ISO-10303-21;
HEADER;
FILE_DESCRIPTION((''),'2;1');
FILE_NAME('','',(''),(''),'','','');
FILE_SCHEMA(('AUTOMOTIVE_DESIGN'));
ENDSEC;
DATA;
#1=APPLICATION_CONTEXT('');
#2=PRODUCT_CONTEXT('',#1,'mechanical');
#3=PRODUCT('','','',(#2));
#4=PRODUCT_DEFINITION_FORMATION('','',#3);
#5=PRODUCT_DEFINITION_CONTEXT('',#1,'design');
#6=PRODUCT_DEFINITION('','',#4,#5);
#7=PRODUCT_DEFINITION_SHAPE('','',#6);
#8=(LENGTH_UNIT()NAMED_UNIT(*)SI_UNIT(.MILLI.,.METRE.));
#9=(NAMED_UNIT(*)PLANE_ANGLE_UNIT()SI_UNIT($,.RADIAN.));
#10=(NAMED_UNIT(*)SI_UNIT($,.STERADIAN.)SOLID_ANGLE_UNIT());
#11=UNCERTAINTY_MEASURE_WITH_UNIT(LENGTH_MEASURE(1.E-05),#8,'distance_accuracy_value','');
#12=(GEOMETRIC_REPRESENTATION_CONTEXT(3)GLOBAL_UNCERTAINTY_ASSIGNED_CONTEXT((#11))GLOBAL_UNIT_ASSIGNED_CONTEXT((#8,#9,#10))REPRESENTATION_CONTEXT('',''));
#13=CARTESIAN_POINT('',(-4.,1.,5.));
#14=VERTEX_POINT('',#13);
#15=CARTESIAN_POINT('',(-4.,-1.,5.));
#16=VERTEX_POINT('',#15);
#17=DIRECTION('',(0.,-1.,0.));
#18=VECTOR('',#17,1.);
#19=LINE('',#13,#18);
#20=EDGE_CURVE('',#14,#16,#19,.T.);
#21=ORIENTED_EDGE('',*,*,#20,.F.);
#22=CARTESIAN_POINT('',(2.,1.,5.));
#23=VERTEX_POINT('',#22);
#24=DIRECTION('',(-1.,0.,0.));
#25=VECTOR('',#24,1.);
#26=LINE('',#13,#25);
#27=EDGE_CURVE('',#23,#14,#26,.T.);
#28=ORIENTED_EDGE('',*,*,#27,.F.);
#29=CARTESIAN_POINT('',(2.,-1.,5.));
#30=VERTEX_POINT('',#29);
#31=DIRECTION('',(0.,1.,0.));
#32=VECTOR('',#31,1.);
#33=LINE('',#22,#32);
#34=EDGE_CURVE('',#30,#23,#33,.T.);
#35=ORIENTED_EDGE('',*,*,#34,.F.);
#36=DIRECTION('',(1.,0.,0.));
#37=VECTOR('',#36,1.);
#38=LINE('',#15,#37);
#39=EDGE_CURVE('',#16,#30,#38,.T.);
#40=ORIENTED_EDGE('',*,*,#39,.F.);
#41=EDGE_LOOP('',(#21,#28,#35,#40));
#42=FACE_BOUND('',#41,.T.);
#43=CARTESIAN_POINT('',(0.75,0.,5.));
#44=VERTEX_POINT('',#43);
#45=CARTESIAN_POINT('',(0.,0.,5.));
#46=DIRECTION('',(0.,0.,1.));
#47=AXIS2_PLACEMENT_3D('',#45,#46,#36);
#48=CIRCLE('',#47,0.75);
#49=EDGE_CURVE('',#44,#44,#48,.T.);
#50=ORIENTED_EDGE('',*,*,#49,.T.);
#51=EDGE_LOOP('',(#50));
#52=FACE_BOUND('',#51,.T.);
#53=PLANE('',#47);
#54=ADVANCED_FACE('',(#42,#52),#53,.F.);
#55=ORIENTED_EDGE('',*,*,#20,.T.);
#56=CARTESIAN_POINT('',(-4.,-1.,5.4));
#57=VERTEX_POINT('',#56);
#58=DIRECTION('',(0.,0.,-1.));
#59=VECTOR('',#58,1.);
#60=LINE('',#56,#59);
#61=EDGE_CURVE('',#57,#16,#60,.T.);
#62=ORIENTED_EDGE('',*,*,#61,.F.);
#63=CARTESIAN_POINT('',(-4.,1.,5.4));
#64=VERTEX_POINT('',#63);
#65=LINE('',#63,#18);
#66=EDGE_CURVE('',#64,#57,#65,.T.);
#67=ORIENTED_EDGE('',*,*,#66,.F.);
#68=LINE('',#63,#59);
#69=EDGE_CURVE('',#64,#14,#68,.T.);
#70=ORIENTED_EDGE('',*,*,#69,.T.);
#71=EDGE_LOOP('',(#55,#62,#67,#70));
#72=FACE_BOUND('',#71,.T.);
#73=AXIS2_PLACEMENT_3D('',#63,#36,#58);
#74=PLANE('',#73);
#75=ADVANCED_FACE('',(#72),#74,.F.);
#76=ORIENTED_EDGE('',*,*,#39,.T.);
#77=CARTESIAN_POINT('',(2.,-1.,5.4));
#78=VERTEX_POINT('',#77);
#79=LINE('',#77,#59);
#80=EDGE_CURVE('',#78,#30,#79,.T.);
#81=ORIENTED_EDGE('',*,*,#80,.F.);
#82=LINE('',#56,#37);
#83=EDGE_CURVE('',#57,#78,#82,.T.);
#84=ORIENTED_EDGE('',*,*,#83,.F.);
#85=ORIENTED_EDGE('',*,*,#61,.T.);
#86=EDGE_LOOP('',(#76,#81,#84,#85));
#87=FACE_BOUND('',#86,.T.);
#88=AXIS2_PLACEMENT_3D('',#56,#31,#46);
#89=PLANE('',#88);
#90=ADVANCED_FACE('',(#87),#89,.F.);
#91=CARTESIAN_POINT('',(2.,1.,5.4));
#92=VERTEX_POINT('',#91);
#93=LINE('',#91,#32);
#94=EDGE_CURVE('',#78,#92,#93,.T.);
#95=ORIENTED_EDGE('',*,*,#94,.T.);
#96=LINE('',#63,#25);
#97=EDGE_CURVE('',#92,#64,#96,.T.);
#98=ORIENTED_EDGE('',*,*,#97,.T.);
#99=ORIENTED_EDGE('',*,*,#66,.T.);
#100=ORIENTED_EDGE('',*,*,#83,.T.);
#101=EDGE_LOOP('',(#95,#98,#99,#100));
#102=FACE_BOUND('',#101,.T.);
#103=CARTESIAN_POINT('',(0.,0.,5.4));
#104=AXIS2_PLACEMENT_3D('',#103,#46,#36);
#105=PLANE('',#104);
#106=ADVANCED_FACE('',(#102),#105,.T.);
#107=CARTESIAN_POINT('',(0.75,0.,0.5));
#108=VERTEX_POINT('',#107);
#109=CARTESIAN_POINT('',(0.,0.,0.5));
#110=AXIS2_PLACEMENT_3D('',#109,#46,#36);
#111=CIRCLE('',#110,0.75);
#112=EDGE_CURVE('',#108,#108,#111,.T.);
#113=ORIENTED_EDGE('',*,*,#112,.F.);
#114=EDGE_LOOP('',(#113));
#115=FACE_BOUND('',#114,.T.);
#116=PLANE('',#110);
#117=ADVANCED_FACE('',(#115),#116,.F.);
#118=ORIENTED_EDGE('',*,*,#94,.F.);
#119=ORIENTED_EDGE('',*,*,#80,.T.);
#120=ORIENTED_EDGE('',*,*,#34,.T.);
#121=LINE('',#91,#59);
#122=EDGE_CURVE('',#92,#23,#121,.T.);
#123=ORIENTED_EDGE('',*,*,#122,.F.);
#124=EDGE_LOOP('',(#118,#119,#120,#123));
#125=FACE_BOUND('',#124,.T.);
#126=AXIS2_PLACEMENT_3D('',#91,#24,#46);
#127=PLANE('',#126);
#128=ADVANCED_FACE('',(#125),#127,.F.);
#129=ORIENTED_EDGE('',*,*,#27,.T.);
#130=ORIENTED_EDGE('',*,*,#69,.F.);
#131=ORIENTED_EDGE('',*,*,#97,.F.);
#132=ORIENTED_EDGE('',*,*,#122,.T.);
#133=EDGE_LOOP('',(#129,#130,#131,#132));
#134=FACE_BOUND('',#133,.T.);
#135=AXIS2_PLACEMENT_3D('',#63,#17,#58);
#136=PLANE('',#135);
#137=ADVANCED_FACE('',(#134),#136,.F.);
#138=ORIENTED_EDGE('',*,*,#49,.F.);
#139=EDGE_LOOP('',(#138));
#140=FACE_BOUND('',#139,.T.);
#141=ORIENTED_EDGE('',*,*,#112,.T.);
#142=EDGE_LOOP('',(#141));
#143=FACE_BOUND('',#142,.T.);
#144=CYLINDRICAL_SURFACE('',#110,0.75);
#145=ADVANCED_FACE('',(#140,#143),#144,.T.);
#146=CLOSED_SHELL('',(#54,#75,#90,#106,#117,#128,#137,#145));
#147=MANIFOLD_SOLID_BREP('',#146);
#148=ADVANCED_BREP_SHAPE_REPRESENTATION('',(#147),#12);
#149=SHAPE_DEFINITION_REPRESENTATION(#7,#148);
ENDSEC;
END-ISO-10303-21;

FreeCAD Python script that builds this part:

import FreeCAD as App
import Part
import Sketcher
Q = App.Units.Quantity


def add_polygon(sketch, points):
    """Adds a closed chain of lines whose ends are joined by coincident constraints."""
    first, n = sketch.GeometryCount, len(points)
    for a, b in zip(points, points[1:] + points[:1]):
        sketch.addGeometry(Part.LineSegment(App.Vector(*a, 0), App.Vector(*b, 0)), False)
    for i in range(n):
        sketch.addConstraint(Sketcher.Constraint("Coincident", first + i, 2, first + (i + 1) % n, 1))

doc = App.newDocument("Part")
params = doc.addObject("Spreadsheet::Sheet", "Params")
for row, (alias, value) in enumerate([
    ("sketch1_width", "6 mm"),
    ("sketch1_height", "2 mm"),
    ("pad1_length", "0.4 mm"),
    ("sketch2_diameter", "1.5 mm"),
    ("pad2_length", "4.5 mm"),
], start=1):
    params.set(f"A{row}", alias)
    params.set(f"B{row}", "=" + value)
    params.setAlias(f"B{row}", alias)

body = doc.addObject("PartDesign::Body", "Body")

sketch1 = body.newObject("Sketcher::SketchObject", "Sketch")
sketch1.AttachmentSupport = (doc.getObject("XY_Plane"), [""])
sketch1.MapMode = "FlatFace"
sketch1.AttachmentOffset = App.Placement(App.Vector(0, 0, 5), App.Rotation())
add_polygon(sketch1, [(-4, 1), (-4, -1), (2, -1), (2, 1)])
sketch1.addConstraint(Sketcher.Constraint("Vertical", 0))
sketch1.addConstraint(Sketcher.Constraint("Horizontal", 1))
sketch1.addConstraint(Sketcher.Constraint("Vertical", 2))
sketch1.addConstraint(Sketcher.Constraint("Horizontal", 3))
sketch1.addConstraint(Sketcher.Constraint("DistanceX", 1, 1, 1, 2, Q("6 mm")))
sketch1.addConstraint(Sketcher.Constraint("DistanceY", 0, 2, 0, 1, Q("2 mm")))
sketch1.addConstraint(Sketcher.Constraint("DistanceX", 0, 2, -1, 1, Q("4 mm")))
sketch1.addConstraint(Sketcher.Constraint("DistanceY", 0, 2, -1, 1, Q("1 mm")))
sketch1.setExpression("Constraints[8]", "Params.sketch1_width")
sketch1.setExpression("Constraints[9]", "Params.sketch1_height")
pad1 = body.newObject("PartDesign::Pad", "Pad")
pad1.Profile = sketch1
pad1.setExpression("Length", "Params.pad1_length")

sketch2 = body.newObject("Sketcher::SketchObject", "Sketch001")
sketch2.AttachmentSupport = (doc.getObject("XY_Plane"), [""])
sketch2.MapMode = "FlatFace"
sketch2.AttachmentOffset = App.Placement(App.Vector(0, 0, 5), App.Rotation())
sketch2.addGeometry(Part.Circle(App.Vector(0, 0, 0), App.Vector(0, 0, 1), 0.75), False)
sketch2.addConstraint(Sketcher.Constraint("Coincident", 0, 3, -1, 1))
sketch2.addConstraint(Sketcher.Constraint("Diameter", 0, Q("1.5 mm")))
sketch2.setExpression("Constraints[1]", "Params.sketch2_diameter")
pad2 = body.newObject("PartDesign::Pad", "Pad001")
pad2.Profile = sketch2
pad2.setExpression("Length", "Params.pad2_length")
pad2.Reversed = True

doc.recompute()
